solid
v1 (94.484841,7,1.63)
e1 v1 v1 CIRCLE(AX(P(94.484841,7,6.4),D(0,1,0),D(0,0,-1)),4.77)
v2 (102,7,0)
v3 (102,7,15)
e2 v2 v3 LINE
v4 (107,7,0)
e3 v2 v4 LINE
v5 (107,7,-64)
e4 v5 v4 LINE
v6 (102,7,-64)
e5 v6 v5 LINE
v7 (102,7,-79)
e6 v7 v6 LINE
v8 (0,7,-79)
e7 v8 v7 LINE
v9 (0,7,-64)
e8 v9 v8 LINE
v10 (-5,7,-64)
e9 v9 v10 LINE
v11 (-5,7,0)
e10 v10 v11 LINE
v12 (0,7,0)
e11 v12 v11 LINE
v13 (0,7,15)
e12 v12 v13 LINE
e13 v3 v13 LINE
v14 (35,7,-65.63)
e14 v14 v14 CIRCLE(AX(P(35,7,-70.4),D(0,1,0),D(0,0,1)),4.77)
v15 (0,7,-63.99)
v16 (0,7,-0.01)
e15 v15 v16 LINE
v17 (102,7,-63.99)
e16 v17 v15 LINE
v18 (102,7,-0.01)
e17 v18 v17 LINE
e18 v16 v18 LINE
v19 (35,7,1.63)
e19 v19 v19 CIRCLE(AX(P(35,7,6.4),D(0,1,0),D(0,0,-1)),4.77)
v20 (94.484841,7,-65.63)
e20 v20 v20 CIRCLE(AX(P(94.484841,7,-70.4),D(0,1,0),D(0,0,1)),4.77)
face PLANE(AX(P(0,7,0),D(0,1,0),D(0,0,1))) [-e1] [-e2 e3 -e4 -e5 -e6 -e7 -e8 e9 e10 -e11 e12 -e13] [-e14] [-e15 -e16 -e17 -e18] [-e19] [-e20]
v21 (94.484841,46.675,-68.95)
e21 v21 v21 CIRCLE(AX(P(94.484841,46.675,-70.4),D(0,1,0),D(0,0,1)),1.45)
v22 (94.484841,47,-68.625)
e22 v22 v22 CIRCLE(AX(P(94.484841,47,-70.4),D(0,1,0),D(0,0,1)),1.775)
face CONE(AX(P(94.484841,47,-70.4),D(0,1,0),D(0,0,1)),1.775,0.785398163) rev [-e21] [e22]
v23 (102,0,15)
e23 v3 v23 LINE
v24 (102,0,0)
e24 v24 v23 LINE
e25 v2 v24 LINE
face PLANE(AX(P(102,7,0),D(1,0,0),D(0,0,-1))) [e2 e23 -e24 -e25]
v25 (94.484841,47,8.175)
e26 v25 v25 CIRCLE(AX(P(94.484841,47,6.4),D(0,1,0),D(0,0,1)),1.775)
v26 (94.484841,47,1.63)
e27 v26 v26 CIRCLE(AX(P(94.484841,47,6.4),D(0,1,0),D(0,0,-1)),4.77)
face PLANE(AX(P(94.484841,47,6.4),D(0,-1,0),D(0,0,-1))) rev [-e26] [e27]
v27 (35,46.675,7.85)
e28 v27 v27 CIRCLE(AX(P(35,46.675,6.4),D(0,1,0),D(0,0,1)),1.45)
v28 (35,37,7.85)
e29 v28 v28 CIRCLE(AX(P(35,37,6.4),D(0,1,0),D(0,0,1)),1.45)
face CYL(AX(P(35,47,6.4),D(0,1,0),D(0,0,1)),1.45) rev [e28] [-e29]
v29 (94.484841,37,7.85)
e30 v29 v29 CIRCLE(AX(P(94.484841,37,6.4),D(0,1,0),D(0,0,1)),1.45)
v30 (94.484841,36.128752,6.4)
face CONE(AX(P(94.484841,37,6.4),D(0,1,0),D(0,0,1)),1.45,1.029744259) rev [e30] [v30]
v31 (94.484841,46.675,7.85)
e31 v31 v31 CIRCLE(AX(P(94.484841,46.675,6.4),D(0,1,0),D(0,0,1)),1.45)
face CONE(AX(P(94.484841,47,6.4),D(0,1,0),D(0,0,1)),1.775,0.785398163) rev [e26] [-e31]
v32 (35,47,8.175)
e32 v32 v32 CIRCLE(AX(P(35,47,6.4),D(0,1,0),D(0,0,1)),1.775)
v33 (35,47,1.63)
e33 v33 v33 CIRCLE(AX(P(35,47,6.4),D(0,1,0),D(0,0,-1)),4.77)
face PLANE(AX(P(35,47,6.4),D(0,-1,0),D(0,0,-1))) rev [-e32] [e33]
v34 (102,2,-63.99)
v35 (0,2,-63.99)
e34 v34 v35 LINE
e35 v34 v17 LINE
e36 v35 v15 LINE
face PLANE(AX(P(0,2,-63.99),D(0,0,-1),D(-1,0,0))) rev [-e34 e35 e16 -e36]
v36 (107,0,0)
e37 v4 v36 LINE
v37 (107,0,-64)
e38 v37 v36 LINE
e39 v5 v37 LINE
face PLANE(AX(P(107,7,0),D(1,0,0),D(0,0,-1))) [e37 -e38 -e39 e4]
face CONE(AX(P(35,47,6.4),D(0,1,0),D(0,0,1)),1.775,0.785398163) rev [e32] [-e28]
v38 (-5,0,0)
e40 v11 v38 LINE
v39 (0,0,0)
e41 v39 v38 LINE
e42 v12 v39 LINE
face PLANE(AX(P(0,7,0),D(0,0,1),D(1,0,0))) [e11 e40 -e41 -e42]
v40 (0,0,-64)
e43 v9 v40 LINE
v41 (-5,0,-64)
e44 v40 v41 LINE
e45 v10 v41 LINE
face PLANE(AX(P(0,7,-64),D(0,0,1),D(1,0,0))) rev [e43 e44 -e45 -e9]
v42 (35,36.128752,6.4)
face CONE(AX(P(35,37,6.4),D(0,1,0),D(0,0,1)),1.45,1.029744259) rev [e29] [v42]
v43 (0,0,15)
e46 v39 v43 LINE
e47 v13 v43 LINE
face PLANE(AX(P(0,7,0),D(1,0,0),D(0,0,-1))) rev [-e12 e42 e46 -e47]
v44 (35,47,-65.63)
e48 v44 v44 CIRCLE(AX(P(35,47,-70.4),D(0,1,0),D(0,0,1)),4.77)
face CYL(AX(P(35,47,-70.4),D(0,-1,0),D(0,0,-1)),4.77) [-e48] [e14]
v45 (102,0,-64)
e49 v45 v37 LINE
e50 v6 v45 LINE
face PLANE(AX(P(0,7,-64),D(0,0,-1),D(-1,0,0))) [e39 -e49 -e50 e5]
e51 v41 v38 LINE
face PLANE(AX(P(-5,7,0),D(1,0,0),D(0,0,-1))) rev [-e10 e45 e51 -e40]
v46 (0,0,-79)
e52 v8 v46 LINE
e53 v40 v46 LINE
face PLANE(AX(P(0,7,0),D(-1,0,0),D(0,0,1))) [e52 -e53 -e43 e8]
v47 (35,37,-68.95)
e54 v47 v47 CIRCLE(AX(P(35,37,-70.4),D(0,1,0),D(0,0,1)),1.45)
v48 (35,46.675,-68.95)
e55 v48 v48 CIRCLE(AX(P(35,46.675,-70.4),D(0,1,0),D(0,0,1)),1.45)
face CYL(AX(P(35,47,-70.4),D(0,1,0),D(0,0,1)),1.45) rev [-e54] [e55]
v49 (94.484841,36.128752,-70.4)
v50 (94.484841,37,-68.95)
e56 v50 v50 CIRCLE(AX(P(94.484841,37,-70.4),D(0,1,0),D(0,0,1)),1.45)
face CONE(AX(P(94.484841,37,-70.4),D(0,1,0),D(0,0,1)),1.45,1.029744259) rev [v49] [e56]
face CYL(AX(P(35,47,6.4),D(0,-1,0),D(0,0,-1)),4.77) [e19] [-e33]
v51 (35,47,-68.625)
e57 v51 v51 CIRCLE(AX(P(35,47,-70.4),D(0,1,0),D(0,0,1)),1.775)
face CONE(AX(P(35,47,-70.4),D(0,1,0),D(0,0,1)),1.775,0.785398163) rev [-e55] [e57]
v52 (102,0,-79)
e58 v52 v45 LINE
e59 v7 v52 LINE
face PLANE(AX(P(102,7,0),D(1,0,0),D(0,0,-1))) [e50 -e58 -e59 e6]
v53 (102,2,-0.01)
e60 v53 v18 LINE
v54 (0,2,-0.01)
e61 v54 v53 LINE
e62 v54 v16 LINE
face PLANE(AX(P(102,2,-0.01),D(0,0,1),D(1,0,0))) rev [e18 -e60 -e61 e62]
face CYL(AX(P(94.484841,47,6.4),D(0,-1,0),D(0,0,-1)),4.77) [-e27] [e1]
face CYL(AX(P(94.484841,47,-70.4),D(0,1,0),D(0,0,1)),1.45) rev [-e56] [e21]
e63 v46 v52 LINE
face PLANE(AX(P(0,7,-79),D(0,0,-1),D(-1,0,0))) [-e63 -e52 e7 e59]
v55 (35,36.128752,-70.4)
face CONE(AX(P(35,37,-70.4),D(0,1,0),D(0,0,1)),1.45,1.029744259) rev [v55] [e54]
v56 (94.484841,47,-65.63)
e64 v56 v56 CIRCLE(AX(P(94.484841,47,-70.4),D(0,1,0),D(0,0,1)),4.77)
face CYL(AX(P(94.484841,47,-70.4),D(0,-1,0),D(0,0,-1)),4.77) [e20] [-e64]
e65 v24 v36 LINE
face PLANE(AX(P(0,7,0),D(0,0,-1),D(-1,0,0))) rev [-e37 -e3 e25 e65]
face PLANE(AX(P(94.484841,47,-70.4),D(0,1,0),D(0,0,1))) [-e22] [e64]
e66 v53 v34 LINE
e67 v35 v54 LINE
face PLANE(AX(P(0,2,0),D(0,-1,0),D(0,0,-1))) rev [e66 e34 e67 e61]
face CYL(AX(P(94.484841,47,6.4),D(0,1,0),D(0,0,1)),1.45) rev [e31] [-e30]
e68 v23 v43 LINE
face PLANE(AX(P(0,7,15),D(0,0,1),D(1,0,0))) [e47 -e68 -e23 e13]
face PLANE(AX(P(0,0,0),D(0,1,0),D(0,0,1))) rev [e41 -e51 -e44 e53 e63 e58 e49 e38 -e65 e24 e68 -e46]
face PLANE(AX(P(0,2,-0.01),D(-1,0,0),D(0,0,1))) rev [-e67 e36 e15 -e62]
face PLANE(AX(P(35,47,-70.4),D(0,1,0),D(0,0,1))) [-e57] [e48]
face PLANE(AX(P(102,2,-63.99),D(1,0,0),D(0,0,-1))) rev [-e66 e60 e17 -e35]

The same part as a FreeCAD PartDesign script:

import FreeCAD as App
import Part
import Sketcher

doc = App.newDocument("Part")
body = doc.addObject("PartDesign::Body", "Body")

# Sketch on XZ plane
sketch1 = body.newObject("Sketcher::SketchObject", "Sketch")
sketch1.AttachmentSupport = (doc.getObject("XZ_Plane"), [""])
sketch1.MapMode = "FlatFace"
sketch1.addGeometry([
    Part.LineSegment(App.Vector(0, -79, 0), App.Vector(0, -64, 0)),  # 0
    Part.LineSegment(App.Vector(0, -64, 0), App.Vector(-5, -64, 0)),  # 1
    Part.LineSegment(App.Vector(-5, -64, 0), App.Vector(-5, 0, 0)),  # 2
    Part.LineSegment(App.Vector(-5, 0, 0), App.Vector(0, 0, 0)),  # 3
    Part.LineSegment(App.Vector(0, 0, 0), App.Vector(0, 15, 0)),  # 4
    Part.LineSegment(App.Vector(0, 15, 0), App.Vector(102, 15, 0)),  # 5
    Part.LineSegment(App.Vector(102, 15, 0), App.Vector(102, 0, 0)),  # 6
    Part.LineSegment(App.Vector(102, 0, 0), App.Vector(107, 0, 0)),  # 7
    Part.LineSegment(App.Vector(107, 0, 0), App.Vector(107, -64, 0)),  # 8
    Part.LineSegment(App.Vector(107, -64, 0), App.Vector(102, -64, 0)),  # 9
    Part.LineSegment(App.Vector(102, -64, 0), App.Vector(102, -79, 0)),  # 10
    Part.LineSegment(App.Vector(102, -79, 0), App.Vector(0, -79, 0)),  # 11
], False)
sketch1.addConstraint([
    Sketcher.Constraint("Coincident", 0, 2, 1, 1),
    Sketcher.Constraint("Coincident", 1, 2, 2, 1),
    Sketcher.Constraint("Coincident", 2, 2, 3, 1),
    Sketcher.Constraint("Coincident", 3, 2, 4, 1),
    Sketcher.Constraint("Coincident", 4, 2, 5, 1),
    Sketcher.Constraint("Coincident", 5, 2, 6, 1),
    Sketcher.Constraint("Coincident", 6, 2, 7, 1),
    Sketcher.Constraint("Coincident", 7, 2, 8, 1),
    Sketcher.Constraint("Coincident", 8, 2, 9, 1),
    Sketcher.Constraint("Coincident", 9, 2, 10, 1),
    Sketcher.Constraint("Coincident", 10, 2, 11, 1),
    Sketcher.Constraint("Coincident", 11, 2, 0, 1),
    Sketcher.Constraint("Vertical", 0),
    Sketcher.Constraint("Horizontal", 1),
    Sketcher.Constraint("Vertical", 2),
    Sketcher.Constraint("Horizontal", 3),
    Sketcher.Constraint("Vertical", 4),
    Sketcher.Constraint("Horizontal", 5),
    Sketcher.Constraint("Vertical", 6),
    Sketcher.Constraint("Horizontal", 7),
    Sketcher.Constraint("Vertical", 8),
    Sketcher.Constraint("Horizontal", 9),
    Sketcher.Constraint("Vertical", 10),
    Sketcher.Constraint("Horizontal", 11),
    Sketcher.Constraint("Coincident", 3, 2, -1, 1),
    Sketcher.Constraint("PointOnObject", 0, 2, -2),
    Sketcher.Constraint("PointOnObject", 6, 2, -1),
    Sketcher.Constraint("Horizontal", 1, 2, 8, 2),
    Sketcher.Constraint("Vertical", 6, 2, 9, 2),
    Sketcher.Constraint("Equal", 3, 7),
    Sketcher.Constraint("Equal", 0, 4),
    Sketcher.Constraint("DistanceX", 1, 2, 1, 1, 5.0),
    Sketcher.Constraint("DistanceX", 5, 1, 5, 2, 102.0),
    Sketcher.Constraint("DistanceY", 0, 1, 0, 2, 15.0),
    Sketcher.Constraint("DistanceY", 2, 1, 2, 2, 64.0),
])
pad1 = body.newObject("PartDesign::Pad", "Pad")
pad1.Profile = sketch1
pad1.Length = 7
pad1.Reversed = True

# Sketch on XZ plane
sketch2 = body.newObject("Sketcher::SketchObject", "Sketch001")
sketch2.AttachmentSupport = (doc.getObject("XZ_Plane"), [""])
sketch2.MapMode = "FlatFace"
sketch2.AttachmentOffset = App.Placement(App.Vector(0, 0, -7), App.Rotation())
sketch2.addGeometry([
    Part.LineSegment(App.Vector(0, -63.99, 0), App.Vector(0, -0.01, 0)),
    Part.LineSegment(App.Vector(0, -0.01, 0), App.Vector(102, -0.01, 0)),
    Part.LineSegment(App.Vector(102, -0.01, 0), App.Vector(102, -63.99, 0)),
    Part.LineSegment(App.Vector(102, -63.99, 0), App.Vector(0, -63.99, 0)),
], False)
sketch2.addConstraint([
    Sketcher.Constraint("Coincident", 0, 2, 1, 1),
    Sketcher.Constraint("Coincident", 1, 2, 2, 1),
    Sketcher.Constraint("Coincident", 2, 2, 3, 1),
    Sketcher.Constraint("Coincident", 3, 2, 0, 1),
    Sketcher.Constraint("Vertical", 0),
    Sketcher.Constraint("Horizontal", 1),
    Sketcher.Constraint("Vertical", 2),
    Sketcher.Constraint("Horizontal", 3),
    Sketcher.Constraint("PointOnObject", 0, 2, -2),
    Sketcher.Constraint("DistanceX", 1, 1, 1, 2, 102.0),
    Sketcher.Constraint("DistanceY", 0, 1, 0, 2, 63.98),
    Sketcher.Constraint("DistanceY", 0, 2, -1, 1, 0.01),
])
pocket1 = body.newObject("PartDesign::Pocket", "Pocket")
pocket1.Profile = sketch2
pocket1.Length = 5
pocket1.Reversed = True

# Sketch on XZ plane
sketch3 = body.newObject("Sketcher::SketchObject", "Sketch002")
sketch3.AttachmentSupport = (doc.getObject("XZ_Plane"), [""])
sketch3.MapMode = "FlatFace"
sketch3.AttachmentOffset = App.Placement(App.Vector(0, 0, -7), App.Rotation())
sketch3.addGeometry([
    Part.Circle(App.Vector(35, -70.4, 0), App.Vector(0, 0, 1), 4.77),
    Part.Circle(App.Vector(94.484841, -70.4, 0), App.Vector(0, 0, 1), 4.77),
    Part.Circle(App.Vector(94.484841, 6.4, 0), App.Vector(0, 0, 1), 4.77),
    Part.Circle(App.Vector(35, 6.4, 0), App.Vector(0, 0, 1), 4.77),
], False)
sketch3.addConstraint([
    Sketcher.Constraint("Equal", 0, 1),
    Sketcher.Constraint("Equal", 1, 2),
    Sketcher.Constraint("Equal", 2, 3),
    Sketcher.Constraint("Horizontal", 0, 3, 1, 3),
    Sketcher.Constraint("Horizontal", 2, 3, 3, 3),
    Sketcher.Constraint("Vertical", 1, 3, 2, 3),
    Sketcher.Constraint("Vertical", 0, 3, 3, 3),
    Sketcher.Constraint("Diameter", 0, 9.54),
    Sketcher.Constraint("DistanceX", -1, 1, 0, 3, 35.0),
    Sketcher.Constraint("DistanceY", 0, 3, -1, 1, 70.4),
    Sketcher.Constraint("DistanceY", -1, 1, 2, 3, 6.4),
    Sketcher.Constraint("DistanceX", -1, 1, 1, 3, 94.484841),
])
pad2 = body.newObject("PartDesign::Pad", "Pad001")
pad2.Profile = sketch3
pad2.Length = 40
pad2.Reversed = True

# Sketch on XZ plane
sketch4 = body.newObject("Sketcher::SketchObject", "Sketch003")
sketch4.AttachmentSupport = (doc.getObject("XZ_Plane"), [""])
sketch4.MapMode = "FlatFace"
sketch4.AttachmentOffset = App.Placement(App.Vector(0, 0, -47), App.Rotation())
sketch4.addGeometry([
    Part.Circle(App.Vector(35, -70.4, 0), App.Vector(0, 0, 1), 1.45),
    Part.Circle(App.Vector(94.484841, -70.4, 0), App.Vector(0, 0, 1), 1.45),
    Part.Circle(App.Vector(94.484841, 6.4, 0), App.Vector(0, 0, 1), 1.45),
    Part.Circle(App.Vector(35, 6.4, 0), App.Vector(0, 0, 1), 1.45),
], False)
sketch4.addConstraint([
    Sketcher.Constraint("Equal", 0, 1),
    Sketcher.Constraint("Equal", 1, 2),
    Sketcher.Constraint("Equal", 2, 3),
    Sketcher.Constraint("Horizontal", 0, 3, 1, 3),
    Sketcher.Constraint("Horizontal", 2, 3, 3, 3),
    Sketcher.Constraint("Vertical", 1, 3, 2, 3),
    Sketcher.Constraint("Vertical", 0, 3, 3, 3),
    Sketcher.Constraint("Diameter", 0, 2.9),
    Sketcher.Constraint("DistanceX", -1, 1, 0, 3, 35.0),
    Sketcher.Constraint("DistanceY", 0, 3, -1, 1, 70.4),
    Sketcher.Constraint("DistanceY", -1, 1, 2, 3, 6.4),
    Sketcher.Constraint("DistanceX", -1, 1, 1, 3, 94.484841),
])
doc.recompute()
hole = body.newObject("PartDesign::Hole", "Hole")
hole.Profile = sketch4
hole.ThreadType = "None"
hole.Diameter = 2.9
hole.DepthType = "Dimension"
hole.Depth = 10
hole.DrillPoint = "Angled"
hole.DrillPointAngle = 118
hole.HoleCutType = "Countersink"
hole.HoleCutDiameter = 3.55
hole.HoleCutCountersinkAngle = 90
hole.Reversed = True

doc.recompute()
